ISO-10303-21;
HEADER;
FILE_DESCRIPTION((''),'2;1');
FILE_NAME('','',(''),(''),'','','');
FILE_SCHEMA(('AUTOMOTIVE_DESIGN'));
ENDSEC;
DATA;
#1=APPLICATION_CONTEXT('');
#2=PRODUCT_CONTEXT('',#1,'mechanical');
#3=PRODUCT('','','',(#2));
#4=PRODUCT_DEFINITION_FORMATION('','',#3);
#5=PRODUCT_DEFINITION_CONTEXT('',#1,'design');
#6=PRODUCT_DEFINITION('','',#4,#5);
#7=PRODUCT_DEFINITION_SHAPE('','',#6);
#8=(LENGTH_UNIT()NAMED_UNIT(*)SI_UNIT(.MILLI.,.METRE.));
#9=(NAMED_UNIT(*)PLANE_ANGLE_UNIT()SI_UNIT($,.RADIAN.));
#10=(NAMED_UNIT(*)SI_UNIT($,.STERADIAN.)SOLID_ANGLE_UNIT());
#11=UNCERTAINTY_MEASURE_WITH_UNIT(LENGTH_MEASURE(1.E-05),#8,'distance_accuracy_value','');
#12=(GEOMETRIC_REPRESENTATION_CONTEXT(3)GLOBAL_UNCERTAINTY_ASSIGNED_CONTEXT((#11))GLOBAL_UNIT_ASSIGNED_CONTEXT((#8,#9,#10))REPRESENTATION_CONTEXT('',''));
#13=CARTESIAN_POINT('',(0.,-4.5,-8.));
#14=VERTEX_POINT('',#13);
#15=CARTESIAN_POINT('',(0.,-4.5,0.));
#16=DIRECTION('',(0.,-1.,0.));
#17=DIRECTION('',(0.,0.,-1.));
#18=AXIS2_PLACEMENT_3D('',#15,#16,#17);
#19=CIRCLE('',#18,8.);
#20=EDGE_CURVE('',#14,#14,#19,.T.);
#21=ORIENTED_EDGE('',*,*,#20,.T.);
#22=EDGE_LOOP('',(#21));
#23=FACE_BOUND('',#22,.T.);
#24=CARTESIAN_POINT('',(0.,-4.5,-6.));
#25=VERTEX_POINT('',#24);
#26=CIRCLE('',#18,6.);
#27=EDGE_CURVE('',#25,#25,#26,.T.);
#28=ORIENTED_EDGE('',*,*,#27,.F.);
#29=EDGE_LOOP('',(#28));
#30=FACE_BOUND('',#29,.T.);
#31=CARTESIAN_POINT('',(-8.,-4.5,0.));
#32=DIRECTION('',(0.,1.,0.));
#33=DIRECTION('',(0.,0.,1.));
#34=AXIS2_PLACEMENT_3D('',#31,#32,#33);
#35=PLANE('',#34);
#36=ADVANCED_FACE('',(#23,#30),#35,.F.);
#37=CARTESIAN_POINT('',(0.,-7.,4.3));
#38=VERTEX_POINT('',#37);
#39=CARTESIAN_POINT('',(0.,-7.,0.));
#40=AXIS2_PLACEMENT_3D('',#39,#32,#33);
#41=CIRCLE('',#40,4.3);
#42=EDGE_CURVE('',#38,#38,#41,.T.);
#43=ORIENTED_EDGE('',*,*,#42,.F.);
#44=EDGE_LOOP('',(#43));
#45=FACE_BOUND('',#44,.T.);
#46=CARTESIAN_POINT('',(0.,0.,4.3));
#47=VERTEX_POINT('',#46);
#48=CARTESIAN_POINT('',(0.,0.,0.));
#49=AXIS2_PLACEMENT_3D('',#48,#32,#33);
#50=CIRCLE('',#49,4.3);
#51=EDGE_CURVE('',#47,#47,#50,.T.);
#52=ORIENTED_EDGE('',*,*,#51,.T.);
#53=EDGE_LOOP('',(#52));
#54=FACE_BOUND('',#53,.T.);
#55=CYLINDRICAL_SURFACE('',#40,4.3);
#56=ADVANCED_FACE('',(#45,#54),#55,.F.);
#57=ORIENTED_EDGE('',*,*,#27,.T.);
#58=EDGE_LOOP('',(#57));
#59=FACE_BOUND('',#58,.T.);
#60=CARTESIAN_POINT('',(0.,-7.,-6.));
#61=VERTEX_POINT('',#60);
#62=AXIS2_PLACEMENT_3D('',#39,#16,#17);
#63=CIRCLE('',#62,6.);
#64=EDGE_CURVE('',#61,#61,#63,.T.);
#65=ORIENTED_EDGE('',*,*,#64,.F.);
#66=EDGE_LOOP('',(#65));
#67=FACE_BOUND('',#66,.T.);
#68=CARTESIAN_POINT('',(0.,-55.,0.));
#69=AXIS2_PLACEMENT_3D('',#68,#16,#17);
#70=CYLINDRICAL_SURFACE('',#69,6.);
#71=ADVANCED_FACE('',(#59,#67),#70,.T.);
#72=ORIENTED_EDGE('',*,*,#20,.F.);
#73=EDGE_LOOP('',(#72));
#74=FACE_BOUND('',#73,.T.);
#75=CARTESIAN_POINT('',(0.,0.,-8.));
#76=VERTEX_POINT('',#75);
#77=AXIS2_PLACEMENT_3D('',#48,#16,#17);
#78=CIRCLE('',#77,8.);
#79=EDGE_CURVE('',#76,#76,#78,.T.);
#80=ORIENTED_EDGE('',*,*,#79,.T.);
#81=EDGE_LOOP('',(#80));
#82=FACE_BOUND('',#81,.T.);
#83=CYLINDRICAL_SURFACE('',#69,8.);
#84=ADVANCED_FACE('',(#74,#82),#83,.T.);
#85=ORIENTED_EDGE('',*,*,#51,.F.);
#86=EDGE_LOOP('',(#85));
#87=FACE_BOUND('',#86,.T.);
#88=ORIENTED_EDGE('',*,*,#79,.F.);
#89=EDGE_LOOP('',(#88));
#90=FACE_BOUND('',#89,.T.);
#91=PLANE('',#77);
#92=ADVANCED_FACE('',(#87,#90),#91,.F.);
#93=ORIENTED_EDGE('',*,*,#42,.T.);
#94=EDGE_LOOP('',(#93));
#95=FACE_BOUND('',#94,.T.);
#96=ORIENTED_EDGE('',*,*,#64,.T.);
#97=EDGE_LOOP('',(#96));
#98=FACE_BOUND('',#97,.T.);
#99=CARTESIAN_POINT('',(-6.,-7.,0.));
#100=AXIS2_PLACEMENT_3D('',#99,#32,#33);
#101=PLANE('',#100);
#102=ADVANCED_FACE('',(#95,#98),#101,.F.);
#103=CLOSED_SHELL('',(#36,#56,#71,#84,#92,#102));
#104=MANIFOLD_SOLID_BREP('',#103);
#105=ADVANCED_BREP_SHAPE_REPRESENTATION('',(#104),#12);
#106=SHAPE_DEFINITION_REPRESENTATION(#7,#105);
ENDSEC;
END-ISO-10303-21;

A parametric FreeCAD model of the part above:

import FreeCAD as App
import Part
import Sketcher


def add_polygon(sketch, points):
    """Adds a closed chain of lines whose ends are joined by coincident constraints."""
    first, n = sketch.GeometryCount, len(points)
    for a, b in zip(points, points[1:] + points[:1]):
        sketch.addGeometry(Part.LineSegment(App.Vector(*a, 0), App.Vector(*b, 0)), False)
    for i in range(n):
        sketch.addConstraint(Sketcher.Constraint("Coincident", first + i, 2, first + (i + 1) % n, 1))

doc = App.newDocument("Part")
body = doc.addObject("PartDesign::Body", "Body")

# Sketch on XY plane
sketch1 = body.newObject("Sketcher::SketchObject", "Sketch")
sketch1.AttachmentSupport = (doc.getObject("XY_Plane"), [""])
sketch1.MapMode = "FlatFace"
add_polygon(sketch1, [(0, 0), (-8, 0), (-8, -4.5), (-6, -4.5), (-6, -7), (0, -7)])  # lines 0-5
sketch1.addConstraint([
    Sketcher.Constraint("Horizontal", 0),
    Sketcher.Constraint("Vertical", 1),
    Sketcher.Constraint("Horizontal", 2),
    Sketcher.Constraint("Vertical", 3),
    Sketcher.Constraint("Horizontal", 4),
    Sketcher.Constraint("Vertical", 5),
    Sketcher.Constraint("Coincident", 5, 2, -1, 1),
    Sketcher.Constraint("DistanceX", 0, 2, 0, 1, 8.0),
    Sketcher.Constraint("DistanceX", 2, 1, 2, 2, 2.0),
    Sketcher.Constraint("DistanceY", 5, 1, 5, 2, 7.0),
    Sketcher.Constraint("DistanceY", 1, 2, 1, 1, 4.5),
])
revolution = body.newObject("PartDesign::Revolution", "Revolution")
revolution.Profile = sketch1
revolution.ReferenceAxis = (sketch1, ["V_Axis"])
revolution.Angle = 360

# Sketch on XZ plane
sketch2 = body.newObject("Sketcher::SketchObject", "Sketch001")
sketch2.AttachmentSupport = (doc.getObject("XZ_Plane"), [""])
sketch2.MapMode = "FlatFace"
sketch2.addGeometry(Part.Circle(App.Vector(0, 0, 0), App.Vector(0, 0, 1), 4.3), False)
sketch2.addConstraint([
    Sketcher.Constraint("Coincident", 0, 3, -1, 1),
    Sketcher.Constraint("Diameter", 0, 8.6),
])
pocket1 = body.newObject("PartDesign::Pocket", "Pocket")
pocket1.Profile = sketch2
pocket1.Type = "ThroughAll"
pocket1.Reversed = True

doc.recompute()
